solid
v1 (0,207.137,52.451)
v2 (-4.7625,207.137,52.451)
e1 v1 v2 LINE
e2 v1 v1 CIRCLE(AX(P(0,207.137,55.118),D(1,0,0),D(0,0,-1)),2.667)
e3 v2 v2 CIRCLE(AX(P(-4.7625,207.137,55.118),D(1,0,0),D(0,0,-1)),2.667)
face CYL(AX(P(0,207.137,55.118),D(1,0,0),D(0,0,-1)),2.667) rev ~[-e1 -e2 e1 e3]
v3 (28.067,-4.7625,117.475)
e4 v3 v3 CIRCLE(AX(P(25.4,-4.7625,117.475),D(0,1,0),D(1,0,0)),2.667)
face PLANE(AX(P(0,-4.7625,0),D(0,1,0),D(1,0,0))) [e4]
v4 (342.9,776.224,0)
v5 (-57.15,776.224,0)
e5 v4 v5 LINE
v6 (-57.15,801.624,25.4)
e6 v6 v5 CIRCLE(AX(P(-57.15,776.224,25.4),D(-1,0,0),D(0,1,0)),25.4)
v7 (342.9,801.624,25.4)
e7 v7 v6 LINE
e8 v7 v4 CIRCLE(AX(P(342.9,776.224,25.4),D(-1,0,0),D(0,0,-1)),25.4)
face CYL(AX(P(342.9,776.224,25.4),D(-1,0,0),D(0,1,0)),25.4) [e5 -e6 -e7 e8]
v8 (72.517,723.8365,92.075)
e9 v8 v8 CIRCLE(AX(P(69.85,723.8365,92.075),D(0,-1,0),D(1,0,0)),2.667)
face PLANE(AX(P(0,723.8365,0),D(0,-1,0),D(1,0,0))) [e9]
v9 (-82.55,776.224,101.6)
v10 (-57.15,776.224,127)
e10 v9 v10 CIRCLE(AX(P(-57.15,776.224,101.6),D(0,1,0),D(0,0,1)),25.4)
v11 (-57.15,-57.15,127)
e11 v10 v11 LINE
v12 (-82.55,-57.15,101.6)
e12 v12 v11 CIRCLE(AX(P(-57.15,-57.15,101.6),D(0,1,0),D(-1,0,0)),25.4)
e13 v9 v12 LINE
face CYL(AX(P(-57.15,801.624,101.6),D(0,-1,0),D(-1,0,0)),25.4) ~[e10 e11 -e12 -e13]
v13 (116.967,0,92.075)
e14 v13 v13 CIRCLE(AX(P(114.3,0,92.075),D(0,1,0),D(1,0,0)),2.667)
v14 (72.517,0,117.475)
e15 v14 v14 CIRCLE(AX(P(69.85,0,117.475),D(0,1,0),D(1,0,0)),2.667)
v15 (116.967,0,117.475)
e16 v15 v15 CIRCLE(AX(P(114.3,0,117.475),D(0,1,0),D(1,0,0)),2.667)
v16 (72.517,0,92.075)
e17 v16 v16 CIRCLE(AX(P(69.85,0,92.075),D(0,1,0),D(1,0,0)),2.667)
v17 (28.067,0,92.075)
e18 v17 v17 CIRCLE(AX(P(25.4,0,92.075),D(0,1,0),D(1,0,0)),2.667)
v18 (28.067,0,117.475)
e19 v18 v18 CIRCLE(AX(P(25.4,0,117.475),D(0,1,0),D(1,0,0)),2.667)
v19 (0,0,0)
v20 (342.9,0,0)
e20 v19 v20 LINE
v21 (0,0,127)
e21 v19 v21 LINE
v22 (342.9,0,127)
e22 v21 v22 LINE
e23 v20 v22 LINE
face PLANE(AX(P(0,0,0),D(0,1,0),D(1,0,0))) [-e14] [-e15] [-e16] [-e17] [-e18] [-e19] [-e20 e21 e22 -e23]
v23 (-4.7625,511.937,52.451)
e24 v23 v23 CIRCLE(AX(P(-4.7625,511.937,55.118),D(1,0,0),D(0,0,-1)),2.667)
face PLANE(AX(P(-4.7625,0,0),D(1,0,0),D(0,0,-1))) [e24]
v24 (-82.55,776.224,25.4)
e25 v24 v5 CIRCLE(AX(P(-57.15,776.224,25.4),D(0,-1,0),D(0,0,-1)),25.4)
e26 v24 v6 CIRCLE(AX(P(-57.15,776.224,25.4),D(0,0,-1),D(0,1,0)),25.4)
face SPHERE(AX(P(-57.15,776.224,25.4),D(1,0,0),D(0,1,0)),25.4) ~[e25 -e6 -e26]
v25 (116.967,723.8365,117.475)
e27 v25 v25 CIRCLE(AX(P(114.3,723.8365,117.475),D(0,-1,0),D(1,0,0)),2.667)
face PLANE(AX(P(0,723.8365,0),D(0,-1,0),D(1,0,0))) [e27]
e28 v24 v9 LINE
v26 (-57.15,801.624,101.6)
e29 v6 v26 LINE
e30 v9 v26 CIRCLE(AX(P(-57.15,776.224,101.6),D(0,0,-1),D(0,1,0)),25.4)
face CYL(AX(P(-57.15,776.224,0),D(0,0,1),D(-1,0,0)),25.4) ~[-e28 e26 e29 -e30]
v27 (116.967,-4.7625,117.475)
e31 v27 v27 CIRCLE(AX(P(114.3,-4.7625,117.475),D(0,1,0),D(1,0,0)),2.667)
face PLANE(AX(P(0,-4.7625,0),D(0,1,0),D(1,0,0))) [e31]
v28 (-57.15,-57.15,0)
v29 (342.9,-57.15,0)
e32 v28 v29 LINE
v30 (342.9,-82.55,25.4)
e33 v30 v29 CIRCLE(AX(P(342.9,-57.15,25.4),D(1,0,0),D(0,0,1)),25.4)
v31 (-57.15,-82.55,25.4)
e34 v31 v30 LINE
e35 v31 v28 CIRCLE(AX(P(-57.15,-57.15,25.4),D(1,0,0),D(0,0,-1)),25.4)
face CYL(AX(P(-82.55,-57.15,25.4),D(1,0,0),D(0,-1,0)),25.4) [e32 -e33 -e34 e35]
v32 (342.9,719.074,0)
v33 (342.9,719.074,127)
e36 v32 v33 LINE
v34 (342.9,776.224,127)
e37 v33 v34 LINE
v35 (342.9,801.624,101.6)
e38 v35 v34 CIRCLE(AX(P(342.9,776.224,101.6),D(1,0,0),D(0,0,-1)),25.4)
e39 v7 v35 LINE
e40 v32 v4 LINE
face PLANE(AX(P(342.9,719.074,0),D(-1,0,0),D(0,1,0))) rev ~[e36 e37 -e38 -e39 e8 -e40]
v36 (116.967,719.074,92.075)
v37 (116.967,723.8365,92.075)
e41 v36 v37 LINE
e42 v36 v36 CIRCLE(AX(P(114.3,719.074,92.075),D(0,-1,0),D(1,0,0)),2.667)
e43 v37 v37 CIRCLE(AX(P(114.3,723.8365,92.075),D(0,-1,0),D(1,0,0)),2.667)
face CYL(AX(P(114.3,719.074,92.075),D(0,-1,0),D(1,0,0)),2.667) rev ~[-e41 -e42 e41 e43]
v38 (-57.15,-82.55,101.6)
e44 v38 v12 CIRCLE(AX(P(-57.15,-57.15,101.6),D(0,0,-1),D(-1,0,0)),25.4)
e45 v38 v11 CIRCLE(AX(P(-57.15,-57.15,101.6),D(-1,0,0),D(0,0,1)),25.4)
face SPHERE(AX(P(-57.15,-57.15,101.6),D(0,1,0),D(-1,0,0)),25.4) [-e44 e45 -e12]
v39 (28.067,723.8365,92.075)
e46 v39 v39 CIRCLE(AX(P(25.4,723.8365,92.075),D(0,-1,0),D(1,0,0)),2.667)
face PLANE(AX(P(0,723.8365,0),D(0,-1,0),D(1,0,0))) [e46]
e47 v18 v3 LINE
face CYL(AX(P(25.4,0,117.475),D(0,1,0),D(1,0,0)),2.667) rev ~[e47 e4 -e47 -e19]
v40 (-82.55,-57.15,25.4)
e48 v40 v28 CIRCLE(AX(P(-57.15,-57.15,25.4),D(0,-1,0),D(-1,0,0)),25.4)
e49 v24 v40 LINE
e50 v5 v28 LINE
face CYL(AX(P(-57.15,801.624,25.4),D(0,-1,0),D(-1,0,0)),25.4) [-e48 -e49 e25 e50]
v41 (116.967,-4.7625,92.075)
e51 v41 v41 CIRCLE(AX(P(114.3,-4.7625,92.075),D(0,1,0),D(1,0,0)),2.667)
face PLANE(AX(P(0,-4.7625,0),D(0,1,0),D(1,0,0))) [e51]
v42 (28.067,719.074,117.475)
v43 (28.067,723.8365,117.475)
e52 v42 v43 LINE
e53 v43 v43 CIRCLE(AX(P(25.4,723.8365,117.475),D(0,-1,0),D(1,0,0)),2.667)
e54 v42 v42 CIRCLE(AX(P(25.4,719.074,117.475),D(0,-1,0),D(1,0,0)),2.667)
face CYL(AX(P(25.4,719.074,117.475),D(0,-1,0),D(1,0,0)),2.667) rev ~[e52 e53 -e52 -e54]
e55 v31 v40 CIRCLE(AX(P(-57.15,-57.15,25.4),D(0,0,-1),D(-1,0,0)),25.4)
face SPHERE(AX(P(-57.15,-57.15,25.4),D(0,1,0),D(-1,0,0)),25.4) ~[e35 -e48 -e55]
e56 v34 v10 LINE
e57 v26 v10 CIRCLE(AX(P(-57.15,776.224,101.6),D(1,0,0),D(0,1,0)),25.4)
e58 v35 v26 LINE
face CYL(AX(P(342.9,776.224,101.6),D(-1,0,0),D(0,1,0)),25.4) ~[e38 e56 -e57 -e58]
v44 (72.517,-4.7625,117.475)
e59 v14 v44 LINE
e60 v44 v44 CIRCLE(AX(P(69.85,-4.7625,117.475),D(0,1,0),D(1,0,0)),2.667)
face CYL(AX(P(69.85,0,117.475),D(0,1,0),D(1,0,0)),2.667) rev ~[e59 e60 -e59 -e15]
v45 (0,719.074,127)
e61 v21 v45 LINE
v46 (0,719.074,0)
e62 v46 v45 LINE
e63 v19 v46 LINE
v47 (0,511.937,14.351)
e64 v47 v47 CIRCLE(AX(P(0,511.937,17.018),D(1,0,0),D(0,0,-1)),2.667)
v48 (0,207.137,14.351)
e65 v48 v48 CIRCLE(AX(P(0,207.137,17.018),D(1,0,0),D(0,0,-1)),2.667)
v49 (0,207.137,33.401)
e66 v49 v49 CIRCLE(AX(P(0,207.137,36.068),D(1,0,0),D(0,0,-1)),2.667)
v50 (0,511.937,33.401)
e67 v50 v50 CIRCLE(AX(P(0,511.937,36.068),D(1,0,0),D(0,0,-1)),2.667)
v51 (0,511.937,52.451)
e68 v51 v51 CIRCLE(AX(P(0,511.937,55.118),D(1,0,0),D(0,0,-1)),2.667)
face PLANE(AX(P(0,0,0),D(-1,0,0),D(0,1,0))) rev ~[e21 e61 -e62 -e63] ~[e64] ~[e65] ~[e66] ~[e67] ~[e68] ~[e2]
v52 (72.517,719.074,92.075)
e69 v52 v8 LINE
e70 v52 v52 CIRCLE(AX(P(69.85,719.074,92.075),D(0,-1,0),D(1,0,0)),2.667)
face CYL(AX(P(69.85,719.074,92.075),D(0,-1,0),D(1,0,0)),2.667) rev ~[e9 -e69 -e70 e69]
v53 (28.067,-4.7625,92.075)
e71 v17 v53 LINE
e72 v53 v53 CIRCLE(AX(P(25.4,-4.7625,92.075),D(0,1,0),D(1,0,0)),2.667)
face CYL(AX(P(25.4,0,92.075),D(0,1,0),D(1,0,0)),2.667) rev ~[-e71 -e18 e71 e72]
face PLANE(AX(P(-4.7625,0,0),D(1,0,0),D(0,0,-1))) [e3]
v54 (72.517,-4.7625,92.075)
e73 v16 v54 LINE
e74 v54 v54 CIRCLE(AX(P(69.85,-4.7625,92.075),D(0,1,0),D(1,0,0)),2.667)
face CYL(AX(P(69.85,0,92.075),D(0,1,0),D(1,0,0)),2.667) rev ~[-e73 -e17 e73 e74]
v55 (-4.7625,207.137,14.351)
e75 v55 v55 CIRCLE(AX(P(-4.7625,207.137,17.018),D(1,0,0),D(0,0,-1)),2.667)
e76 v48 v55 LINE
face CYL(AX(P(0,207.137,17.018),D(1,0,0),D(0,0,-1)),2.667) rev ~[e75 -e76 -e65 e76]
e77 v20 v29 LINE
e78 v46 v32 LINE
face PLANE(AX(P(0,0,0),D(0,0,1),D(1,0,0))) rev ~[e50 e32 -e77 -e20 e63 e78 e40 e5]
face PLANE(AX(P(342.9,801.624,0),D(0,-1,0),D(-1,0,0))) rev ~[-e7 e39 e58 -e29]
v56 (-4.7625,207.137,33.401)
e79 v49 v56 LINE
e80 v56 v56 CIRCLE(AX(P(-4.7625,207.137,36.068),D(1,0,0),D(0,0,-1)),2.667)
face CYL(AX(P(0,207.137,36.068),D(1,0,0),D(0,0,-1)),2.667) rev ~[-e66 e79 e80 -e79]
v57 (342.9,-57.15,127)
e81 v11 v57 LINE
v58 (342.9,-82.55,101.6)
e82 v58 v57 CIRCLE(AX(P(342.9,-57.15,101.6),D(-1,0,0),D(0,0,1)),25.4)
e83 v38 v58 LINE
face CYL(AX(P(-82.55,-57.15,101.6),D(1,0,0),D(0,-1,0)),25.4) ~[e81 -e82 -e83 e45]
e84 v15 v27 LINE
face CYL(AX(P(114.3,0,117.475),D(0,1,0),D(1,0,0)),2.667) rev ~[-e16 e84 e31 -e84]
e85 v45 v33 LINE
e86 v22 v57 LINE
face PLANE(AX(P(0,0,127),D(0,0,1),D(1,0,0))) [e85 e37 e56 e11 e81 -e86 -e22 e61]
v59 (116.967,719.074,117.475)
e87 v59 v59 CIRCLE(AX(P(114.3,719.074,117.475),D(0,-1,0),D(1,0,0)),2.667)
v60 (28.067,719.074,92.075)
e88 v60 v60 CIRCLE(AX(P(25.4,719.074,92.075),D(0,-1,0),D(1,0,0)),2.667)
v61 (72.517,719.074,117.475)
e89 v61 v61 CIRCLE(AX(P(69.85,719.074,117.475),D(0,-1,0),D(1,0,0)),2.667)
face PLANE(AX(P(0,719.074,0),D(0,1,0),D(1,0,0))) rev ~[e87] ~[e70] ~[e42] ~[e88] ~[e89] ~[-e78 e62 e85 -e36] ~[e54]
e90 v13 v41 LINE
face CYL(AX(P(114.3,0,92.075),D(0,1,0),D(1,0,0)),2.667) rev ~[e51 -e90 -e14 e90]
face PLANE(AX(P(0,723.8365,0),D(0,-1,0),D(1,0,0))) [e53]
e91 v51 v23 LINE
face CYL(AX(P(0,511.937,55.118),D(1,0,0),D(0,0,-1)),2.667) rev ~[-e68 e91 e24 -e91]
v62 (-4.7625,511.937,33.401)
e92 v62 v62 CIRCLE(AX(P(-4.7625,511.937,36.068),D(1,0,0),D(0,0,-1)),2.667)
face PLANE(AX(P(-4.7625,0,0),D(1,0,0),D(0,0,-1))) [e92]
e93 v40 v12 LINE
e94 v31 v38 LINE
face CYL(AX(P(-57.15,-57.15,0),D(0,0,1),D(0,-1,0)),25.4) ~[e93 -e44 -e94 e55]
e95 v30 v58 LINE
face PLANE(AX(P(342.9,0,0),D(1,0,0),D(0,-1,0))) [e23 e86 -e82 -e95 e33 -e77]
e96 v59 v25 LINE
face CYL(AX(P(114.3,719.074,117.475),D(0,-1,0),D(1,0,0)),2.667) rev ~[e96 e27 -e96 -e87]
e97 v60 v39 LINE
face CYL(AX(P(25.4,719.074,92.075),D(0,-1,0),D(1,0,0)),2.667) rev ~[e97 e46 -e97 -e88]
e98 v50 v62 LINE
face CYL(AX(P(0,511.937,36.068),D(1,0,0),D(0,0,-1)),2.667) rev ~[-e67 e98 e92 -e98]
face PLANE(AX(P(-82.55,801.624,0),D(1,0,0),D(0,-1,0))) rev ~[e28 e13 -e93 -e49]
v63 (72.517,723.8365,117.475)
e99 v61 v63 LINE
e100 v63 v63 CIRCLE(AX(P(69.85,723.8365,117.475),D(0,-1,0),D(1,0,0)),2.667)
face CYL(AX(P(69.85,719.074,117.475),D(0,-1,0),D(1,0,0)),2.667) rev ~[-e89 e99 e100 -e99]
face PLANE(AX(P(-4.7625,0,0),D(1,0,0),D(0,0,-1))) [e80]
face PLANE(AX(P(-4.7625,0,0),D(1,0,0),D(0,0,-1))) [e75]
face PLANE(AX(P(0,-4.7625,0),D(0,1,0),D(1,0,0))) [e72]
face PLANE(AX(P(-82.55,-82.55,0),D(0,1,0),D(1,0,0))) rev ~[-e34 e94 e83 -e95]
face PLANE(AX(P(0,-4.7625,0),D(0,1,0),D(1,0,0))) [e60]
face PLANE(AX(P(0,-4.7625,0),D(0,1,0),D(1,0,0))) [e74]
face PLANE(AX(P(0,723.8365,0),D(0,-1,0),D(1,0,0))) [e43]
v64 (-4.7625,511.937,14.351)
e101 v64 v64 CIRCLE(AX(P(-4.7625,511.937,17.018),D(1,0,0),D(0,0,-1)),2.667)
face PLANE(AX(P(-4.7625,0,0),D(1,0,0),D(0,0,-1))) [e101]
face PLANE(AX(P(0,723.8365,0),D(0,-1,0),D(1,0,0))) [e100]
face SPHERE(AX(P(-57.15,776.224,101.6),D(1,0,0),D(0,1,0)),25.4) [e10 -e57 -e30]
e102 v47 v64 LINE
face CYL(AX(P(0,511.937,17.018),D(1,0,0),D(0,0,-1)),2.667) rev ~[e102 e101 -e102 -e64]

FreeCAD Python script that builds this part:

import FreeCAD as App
import Part
import Sketcher

V = App.Vector
Q = App.Units.Quantity


def edges_at(feature, points):
    """Names of the edges that pass closest to the given points."""
    edges = feature.Shape.Edges
    near = lambda p: min(range(len(edges)), key=lambda i: edges[i].distToShape(Part.Vertex(*p))[0])
    return sorted({f"Edge{near(p) + 1}" for p in points})


def add_polygon(sketch, points):
    """Adds a closed chain of lines whose ends are joined by coincident constraints."""
    first, n = sketch.GeometryCount, len(points)
    for a, b in zip(points, points[1:] + points[:1]):
        sketch.addGeometry(Part.LineSegment(App.Vector(*a, 0), App.Vector(*b, 0)), False)
    for i in range(n):
        sketch.addConstraint(Sketcher.Constraint("Coincident", first + i, 2, first + (i + 1) % n, 1))

doc = App.newDocument("Part")
body = doc.addObject("PartDesign::Body", "Body")

sketch1 = body.newObject("Sketcher::SketchObject", "Sketch")
sketch1.AttachmentSupport = (doc.getObject("XY_Plane"), [""])
sketch1.MapMode = "FlatFace"
add_polygon(sketch1, [(342.9, 0), (0, 0), (0, 719.074), (342.9, 719.074), (342.9, 801.624), (-82.55, 801.624), (-82.55, -82.55), (342.9, -82.55)])
sketch1.addConstraint([
    Sketcher.Constraint("Horizontal", 0),
    Sketcher.Constraint("Vertical", 1),
    Sketcher.Constraint("Horizontal", 2),
    Sketcher.Constraint("Vertical", 3),
    Sketcher.Constraint("Horizontal", 4),
    Sketcher.Constraint("Vertical", 5),
    Sketcher.Constraint("Horizontal", 6),
    Sketcher.Constraint("Vertical", 7),
    Sketcher.Constraint("Coincident", 0, 2, -1, 1),
    Sketcher.Constraint("Vertical", 3, 2, 6, 2),
    Sketcher.Constraint("Equal", 3, 7),
    Sketcher.Constraint("DistanceX", 0, 2, 0, 1, Q("13.5 in")),
    Sketcher.Constraint("DistanceY", 1, 1, 1, 2, Q("28.31 in")),
    Sketcher.Constraint("DistanceY", 3, 1, 3, 2, Q("3.25 in")),
    Sketcher.Constraint("DistanceX", 4, 2, -1, 1, Q("3.25 in")),
])
pad1 = body.newObject("PartDesign::Pad", "Pad")
pad1.Profile = sketch1
pad1.Length = Q("5 in")
doc.recompute()

fillet = body.newObject("PartDesign::Fillet", "Fillet")
fillet.Base = (pad1, edges_at(pad1, [
    (130.175, 801.624, 127),
    (130.175, 801.624, 0),
    (-82.55, 801.624, 63.5),
    (-82.55, 359.537, 127),
    (-82.55, 359.537, 0),
    (-82.55, -82.55, 63.5),
    (130.175, -82.55, 0),
    (130.175, -82.55, 127),
]))
fillet.Radius = Q("1 in")

sketch2 = body.newObject("Sketcher::SketchObject", "Sketch001")
sketch2.AttachmentSupport = (doc.getObject("XZ_Plane"), [""])
sketch2.MapMode = "FlatFace"
sketch2.AttachmentOffset = App.Placement(V(0, 0, -28.31 * 25.4), App.Rotation())
sketch2.addGeometry([
    Part.Circle(V(114.3, 117.475, 0), V(0, 0, 1), 2.667),
    Part.Circle(V(69.85, 117.475, 0), V(0, 0, 1), 2.667),
    Part.Circle(V(25.4, 117.475, 0), V(0, 0, 1), 2.667),
    Part.Circle(V(25.4, 92.075, 0), V(0, 0, 1), 2.667),
    Part.Circle(V(69.85, 92.075, 0), V(0, 0, 1), 2.667),
    Part.Circle(V(114.3, 92.075, 0), V(0, 0, 1), 2.667),
], False)
sketch2.addConstraint([
    Sketcher.Constraint("Equal", 0, 1),
    Sketcher.Constraint("Equal", 1, 2),
    Sketcher.Constraint("Equal", 2, 3),
    Sketcher.Constraint("Equal", 3, 4),
    Sketcher.Constraint("Equal", 4, 5),
    Sketcher.Constraint("Horizontal", 0, 3, 1, 3),
    Sketcher.Constraint("Horizontal", 1, 3, 2, 3),
    Sketcher.Constraint("Horizontal", 3, 3, 4, 3),
    Sketcher.Constraint("Horizontal", 4, 3, 5, 3),
    Sketcher.Constraint("Vertical", 2, 3, 3, 3),
    Sketcher.Constraint("Vertical", 1, 3, 4, 3),
    Sketcher.Constraint("Vertical", 0, 3, 5, 3),
    Sketcher.Constraint("Diameter", 0, Q("0.21 in")),
    Sketcher.Constraint("DistanceX", -1, 1, 2, 3, Q("1 in")),
    Sketcher.Constraint("DistanceY", 3, 3, 2, 3, Q("1 in")),
    Sketcher.Constraint("DistanceX", 1, 3, 0, 3, Q("1.75 in")),
    Sketcher.Constraint("DistanceX", 2, 3, 1, 3, Q("1.75 in")),
    Sketcher.Constraint("DistanceY", -1, 1, 0, 3, Q("4.625 in")),
])
pocket1 = body.newObject("PartDesign::Pocket", "Pocket")
pocket1.Profile = sketch2
pocket1.Length = Q("0.1875 in")

sketch3 = body.newObject("Sketcher::SketchObject", "Sketch002")
sketch3.AttachmentSupport = (doc.getObject("XZ_Plane"), [""])
sketch3.MapMode = "FlatFace"
sketch3.addGeometry([
    Part.Circle(V(114.3, 117.475, 0), V(0, 0, 1), 2.667),
    Part.Circle(V(69.85, 117.475, 0), V(0, 0, 1), 2.667),
    Part.Circle(V(25.4, 117.475, 0), V(0, 0, 1), 2.667),
    Part.Circle(V(25.4, 92.075, 0), V(0, 0, 1), 2.667),
    Part.Circle(V(69.85, 92.075, 0), V(0, 0, 1), 2.667),
    Part.Circle(V(114.3, 92.075, 0), V(0, 0, 1), 2.667),
], False)
sketch3.addConstraint([
    Sketcher.Constraint("Equal", 0, 1),
    Sketcher.Constraint("Equal", 1, 2),
    Sketcher.Constraint("Equal", 2, 3),
    Sketcher.Constraint("Equal", 3, 4),
    Sketcher.Constraint("Equal", 4, 5),
    Sketcher.Constraint("Horizontal", 0, 3, 1, 3),
    Sketcher.Constraint("Horizontal", 1, 3, 2, 3),
    Sketcher.Constraint("Horizontal", 3, 3, 4, 3),
    Sketcher.Constraint("Horizontal", 4, 3, 5, 3),
    Sketcher.Constraint("Vertical", 2, 3, 3, 3),
    Sketcher.Constraint("Vertical", 1, 3, 4, 3),
    Sketcher.Constraint("Vertical", 0, 3, 5, 3),
    Sketcher.Constraint("Diameter", 0, Q("0.21 in")),
    Sketcher.Constraint("DistanceX", -1, 1, 2, 3, Q("1 in")),
    Sketcher.Constraint("DistanceY", 3, 3, 2, 3, Q("1 in")),
    Sketcher.Constraint("DistanceX", 1, 3, 0, 3, Q("1.75 in")),
    Sketcher.Constraint("DistanceX", 2, 3, 1, 3, Q("1.75 in")),
    Sketcher.Constraint("DistanceY", -1, 1, 0, 3, Q("4.625 in")),
])
pocket2 = body.newObject("PartDesign::Pocket", "Pocket001")
pocket2.Profile = sketch3
pocket2.Length = Q("0.1875 in")
pocket2.Reversed = True

sketch4 = body.newObject("Sketcher::SketchObject", "Sketch003")
sketch4.AttachmentSupport = (doc.getObject("YZ_Plane"), [""])
sketch4.MapMode = "FlatFace"
sketch4.addGeometry([
    Part.Circle(V(207.137, 55.118, 0), V(0, 0, 1), 2.667),
    Part.Circle(V(207.137, 36.068, 0), V(0, 0, 1), 2.667),
    Part.Circle(V(207.137, 17.018, 0), V(0, 0, 1), 2.667),
    Part.Circle(V(511.937, 55.118, 0), V(0, 0, 1), 2.667),
    Part.Circle(V(511.937, 36.068, 0), V(0, 0, 1), 2.667),
    Part.Circle(V(511.937, 17.018, 0), V(0, 0, 1), 2.667),
], False)
sketch4.addConstraint([
    Sketcher.Constraint("Equal", 0, 1),
    Sketcher.Constraint("Equal", 1, 2),
    Sketcher.Constraint("Equal", 2, 3),
    Sketcher.Constraint("Equal", 3, 4),
    Sketcher.Constraint("Equal", 4, 5),
    Sketcher.Constraint("Horizontal", 0, 3, 3, 3),
    Sketcher.Constraint("Horizontal", 1, 3, 4, 3),
    Sketcher.Constraint("Horizontal", 2, 3, 5, 3),
    Sketcher.Constraint("Vertical", 0, 3, 1, 3),
    Sketcher.Constraint("Vertical", 1, 3, 2, 3),
    Sketcher.Constraint("Vertical", 3, 3, 4, 3),
    Sketcher.Constraint("Vertical", 4, 3, 5, 3),
    Sketcher.Constraint("Diameter", 0, Q("0.21 in")),
    Sketcher.Constraint("DistanceY", 1, 3, 0, 3, Q("0.75 in")),
    Sketcher.Constraint("DistanceY", 2, 3, 1, 3, Q("0.75 in")),
    Sketcher.Constraint("DistanceX", -1, 1, 0, 3, Q("8.155 in")),
    Sketcher.Constraint("DistanceX", 0, 3, 3, 3, Q("12 in")),
    Sketcher.Constraint("DistanceY", -1, 1, 0, 3, Q("2.17 in")),
])
pocket3 = body.newObject("PartDesign::Pocket", "Pocket002")
pocket3.Profile = sketch4
pocket3.Length = Q("0.1875 in")

doc.recompute()
